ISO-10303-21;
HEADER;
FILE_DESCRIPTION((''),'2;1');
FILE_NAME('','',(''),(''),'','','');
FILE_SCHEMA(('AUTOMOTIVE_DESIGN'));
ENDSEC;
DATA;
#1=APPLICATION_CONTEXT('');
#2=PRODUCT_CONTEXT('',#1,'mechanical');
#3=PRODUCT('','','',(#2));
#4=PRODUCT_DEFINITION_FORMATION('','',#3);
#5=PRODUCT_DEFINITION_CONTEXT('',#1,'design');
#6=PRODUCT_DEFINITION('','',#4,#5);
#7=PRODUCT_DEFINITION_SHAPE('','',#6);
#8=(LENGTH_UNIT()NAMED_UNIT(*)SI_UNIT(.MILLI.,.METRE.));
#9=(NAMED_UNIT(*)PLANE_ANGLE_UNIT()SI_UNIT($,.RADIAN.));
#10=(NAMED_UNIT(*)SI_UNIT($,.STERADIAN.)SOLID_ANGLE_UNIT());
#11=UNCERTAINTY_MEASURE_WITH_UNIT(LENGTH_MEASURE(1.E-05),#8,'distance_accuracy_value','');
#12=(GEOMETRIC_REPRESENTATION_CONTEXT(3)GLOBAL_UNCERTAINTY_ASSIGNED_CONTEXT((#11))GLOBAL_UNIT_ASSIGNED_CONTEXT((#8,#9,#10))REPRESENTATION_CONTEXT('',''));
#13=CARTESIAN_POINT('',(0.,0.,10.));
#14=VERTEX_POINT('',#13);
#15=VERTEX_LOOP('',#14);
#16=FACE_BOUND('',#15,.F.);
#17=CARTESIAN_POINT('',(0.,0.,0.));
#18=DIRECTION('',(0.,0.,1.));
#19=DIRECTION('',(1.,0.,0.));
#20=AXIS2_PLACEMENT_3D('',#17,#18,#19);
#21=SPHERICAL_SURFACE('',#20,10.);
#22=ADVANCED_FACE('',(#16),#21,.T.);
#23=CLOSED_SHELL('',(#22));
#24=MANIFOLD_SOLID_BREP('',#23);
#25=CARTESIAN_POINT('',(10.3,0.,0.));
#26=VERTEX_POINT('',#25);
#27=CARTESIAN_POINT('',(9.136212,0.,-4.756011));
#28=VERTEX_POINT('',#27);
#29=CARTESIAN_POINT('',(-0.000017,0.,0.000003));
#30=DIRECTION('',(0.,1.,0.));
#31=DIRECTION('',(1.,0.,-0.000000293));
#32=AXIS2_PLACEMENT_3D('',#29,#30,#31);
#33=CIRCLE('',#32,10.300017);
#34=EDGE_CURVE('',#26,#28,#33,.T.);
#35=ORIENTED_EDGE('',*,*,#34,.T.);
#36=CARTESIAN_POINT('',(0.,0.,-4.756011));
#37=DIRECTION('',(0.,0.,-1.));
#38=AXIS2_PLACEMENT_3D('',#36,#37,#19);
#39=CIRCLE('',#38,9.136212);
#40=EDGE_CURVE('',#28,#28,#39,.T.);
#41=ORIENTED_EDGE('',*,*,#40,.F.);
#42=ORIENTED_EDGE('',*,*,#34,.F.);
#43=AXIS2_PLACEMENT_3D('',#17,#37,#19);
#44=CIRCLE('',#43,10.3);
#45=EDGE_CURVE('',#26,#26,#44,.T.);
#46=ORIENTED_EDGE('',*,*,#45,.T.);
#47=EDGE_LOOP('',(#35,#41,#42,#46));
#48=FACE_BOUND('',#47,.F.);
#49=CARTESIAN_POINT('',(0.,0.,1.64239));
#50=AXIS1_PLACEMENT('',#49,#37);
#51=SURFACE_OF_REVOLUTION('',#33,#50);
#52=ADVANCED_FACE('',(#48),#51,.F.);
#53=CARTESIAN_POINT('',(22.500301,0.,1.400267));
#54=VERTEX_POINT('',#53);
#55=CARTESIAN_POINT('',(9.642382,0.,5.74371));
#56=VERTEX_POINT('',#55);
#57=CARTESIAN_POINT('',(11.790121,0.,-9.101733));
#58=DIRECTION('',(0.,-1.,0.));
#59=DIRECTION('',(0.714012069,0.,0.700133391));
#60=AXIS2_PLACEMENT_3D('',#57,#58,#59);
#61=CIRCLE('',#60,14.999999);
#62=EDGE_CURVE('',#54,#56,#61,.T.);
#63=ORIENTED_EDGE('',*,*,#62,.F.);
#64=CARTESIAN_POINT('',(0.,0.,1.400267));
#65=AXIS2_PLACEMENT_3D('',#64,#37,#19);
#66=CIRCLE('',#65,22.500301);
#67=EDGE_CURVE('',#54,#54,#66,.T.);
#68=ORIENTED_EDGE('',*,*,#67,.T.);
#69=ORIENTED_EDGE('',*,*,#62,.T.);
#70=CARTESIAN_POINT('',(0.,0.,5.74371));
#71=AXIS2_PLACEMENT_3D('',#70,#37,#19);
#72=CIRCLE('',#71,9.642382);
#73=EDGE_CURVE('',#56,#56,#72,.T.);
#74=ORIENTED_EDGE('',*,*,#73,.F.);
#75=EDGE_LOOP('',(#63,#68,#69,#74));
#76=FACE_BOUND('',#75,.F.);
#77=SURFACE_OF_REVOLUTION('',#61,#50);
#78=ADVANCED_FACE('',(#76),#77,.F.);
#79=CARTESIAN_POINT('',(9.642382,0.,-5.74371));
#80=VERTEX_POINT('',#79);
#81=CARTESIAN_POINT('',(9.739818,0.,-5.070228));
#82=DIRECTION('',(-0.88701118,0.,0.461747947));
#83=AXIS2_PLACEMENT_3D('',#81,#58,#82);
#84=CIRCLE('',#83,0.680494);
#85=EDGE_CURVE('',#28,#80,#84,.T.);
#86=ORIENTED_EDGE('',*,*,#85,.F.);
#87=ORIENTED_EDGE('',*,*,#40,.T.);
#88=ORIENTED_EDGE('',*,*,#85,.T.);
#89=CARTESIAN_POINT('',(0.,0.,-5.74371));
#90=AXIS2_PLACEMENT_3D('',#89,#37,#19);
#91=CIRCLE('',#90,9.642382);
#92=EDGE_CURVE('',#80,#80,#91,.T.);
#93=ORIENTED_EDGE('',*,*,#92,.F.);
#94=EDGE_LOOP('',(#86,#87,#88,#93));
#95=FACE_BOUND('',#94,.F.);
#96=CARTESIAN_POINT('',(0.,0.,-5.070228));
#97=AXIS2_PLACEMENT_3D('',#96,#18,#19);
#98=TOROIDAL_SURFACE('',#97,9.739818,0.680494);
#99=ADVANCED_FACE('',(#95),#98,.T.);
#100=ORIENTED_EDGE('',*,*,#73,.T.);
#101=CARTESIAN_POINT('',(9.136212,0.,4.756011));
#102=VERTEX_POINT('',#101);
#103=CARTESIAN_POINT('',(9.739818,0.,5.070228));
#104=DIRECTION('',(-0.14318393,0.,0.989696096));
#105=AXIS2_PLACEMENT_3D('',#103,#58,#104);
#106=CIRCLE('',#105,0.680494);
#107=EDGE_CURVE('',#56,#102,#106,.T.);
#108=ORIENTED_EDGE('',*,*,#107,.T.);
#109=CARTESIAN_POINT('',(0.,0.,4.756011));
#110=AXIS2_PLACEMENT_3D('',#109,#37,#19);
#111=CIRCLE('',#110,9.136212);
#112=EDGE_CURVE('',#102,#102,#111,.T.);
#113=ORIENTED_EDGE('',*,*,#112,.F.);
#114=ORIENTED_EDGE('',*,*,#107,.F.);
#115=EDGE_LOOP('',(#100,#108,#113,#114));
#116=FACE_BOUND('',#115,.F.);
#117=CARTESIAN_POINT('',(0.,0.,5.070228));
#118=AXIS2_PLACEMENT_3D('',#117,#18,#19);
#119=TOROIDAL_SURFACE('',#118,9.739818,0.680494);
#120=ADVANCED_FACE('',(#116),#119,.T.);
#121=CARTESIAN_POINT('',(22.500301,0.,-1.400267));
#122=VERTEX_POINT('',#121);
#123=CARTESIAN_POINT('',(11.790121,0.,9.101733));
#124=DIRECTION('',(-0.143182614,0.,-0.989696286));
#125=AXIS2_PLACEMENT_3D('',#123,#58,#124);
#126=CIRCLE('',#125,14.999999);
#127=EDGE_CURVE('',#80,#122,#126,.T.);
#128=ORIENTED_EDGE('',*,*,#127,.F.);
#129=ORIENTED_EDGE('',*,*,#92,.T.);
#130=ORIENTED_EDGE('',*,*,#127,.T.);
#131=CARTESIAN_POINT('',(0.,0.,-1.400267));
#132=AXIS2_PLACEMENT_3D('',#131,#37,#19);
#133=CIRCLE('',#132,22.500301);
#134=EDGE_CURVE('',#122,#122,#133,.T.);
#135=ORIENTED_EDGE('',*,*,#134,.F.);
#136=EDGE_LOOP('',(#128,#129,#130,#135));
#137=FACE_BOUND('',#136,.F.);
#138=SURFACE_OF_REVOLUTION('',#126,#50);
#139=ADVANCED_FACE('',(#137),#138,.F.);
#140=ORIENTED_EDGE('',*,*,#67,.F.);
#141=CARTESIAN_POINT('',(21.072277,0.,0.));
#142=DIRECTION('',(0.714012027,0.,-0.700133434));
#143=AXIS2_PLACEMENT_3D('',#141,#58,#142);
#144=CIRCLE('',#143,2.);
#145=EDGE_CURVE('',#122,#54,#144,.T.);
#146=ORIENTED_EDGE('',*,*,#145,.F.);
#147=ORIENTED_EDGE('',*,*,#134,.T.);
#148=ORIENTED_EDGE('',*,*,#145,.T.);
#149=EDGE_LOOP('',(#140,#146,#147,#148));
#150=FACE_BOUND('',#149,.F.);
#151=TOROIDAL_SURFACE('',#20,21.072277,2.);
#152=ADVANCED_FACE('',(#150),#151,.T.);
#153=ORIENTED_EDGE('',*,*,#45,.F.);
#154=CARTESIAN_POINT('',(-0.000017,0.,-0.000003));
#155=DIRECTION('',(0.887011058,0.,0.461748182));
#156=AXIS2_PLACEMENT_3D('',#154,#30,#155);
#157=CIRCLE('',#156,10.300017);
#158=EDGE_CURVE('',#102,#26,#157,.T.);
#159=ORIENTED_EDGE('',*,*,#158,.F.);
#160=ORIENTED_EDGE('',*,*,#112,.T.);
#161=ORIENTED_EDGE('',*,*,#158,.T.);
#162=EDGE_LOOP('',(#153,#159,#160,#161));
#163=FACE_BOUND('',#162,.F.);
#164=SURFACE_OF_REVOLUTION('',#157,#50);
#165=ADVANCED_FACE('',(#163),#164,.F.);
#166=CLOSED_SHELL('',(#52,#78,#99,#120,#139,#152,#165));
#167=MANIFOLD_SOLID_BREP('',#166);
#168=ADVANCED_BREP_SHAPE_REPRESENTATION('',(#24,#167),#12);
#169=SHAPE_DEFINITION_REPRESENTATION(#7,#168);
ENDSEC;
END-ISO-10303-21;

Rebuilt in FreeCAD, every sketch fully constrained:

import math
import FreeCAD as App
import Part
import Sketcher

doc = App.newDocument("Part")
body = doc.addObject("PartDesign::Body", "Body")
body.AllowCompound = True

# Sketch on XZ plane
sketch1 = body.newObject("Sketcher::SketchObject", "Sketch")
sketch1.AttachmentSupport = (doc.getObject("XZ_Plane"), [""])
sketch1.MapMode = "FlatFace"
sketch1.addGeometry(Part.LineSegment(App.Vector(0, 10, 0), App.Vector(0, -10, 0)), False)
sketch1.addGeometry(Part.ArcOfCircle(Part.Circle(App.Vector(0, 0, 0), App.Vector(0, 0, 1), 10), math.radians(-90), math.radians(90)), False)
sketch1.addGeometry(Part.ArcOfCircle(Part.Circle(App.Vector(-0.000017, -0.000003, 0), App.Vector(0, 0, 1), 10.300017), math.radians(0.000017), math.radians(27.499972)), False)
sketch1.addGeometry(Part.ArcOfCircle(Part.Circle(App.Vector(-0.000017, 0.000003, 0), App.Vector(0, 0, 1), 10.300017), math.radians(-27.499972), math.radians(-0.000017)), False)
sketch1.addGeometry(Part.ArcOfCircle(Part.Circle(App.Vector(9.739818, -5.070228, 0), App.Vector(0, 0, 1), 0.680494), math.radians(152.500043), math.radians(261.767871)), False)
sketch1.addGeometry(Part.ArcOfCircle(Part.Circle(App.Vector(11.790121, 9.101733, 0), App.Vector(0, 0, 1), 14.999999), math.radians(-98.232053), math.radians(-44.437707)), False)
sketch1.addGeometry(Part.ArcOfCircle(Part.Circle(App.Vector(21.072277, 0, 0), App.Vector(0, 0, 1), 2), math.radians(-44.43771), math.radians(44.43771)), False)
sketch1.addGeometry(Part.ArcOfCircle(Part.Circle(App.Vector(11.790121, -9.101733, 0), App.Vector(0, 0, 1), 14.999999), math.radians(44.437707), math.radians(98.232053)), False)
sketch1.addGeometry(Part.ArcOfCircle(Part.Circle(App.Vector(9.739818, 5.070228, 0), App.Vector(0, 0, 1), 0.680494), math.radians(98.232129), math.radians(207.499957)), False)
sketch1.addConstraint(Sketcher.Constraint("Coincident", 0, 1, 1, 2))
sketch1.addConstraint(Sketcher.Constraint("Coincident", 1, 1, 0, 2))
sketch1.addConstraint(Sketcher.Constraint("Tangent", 2, 1, 3, 2))
sketch1.addConstraint(Sketcher.Constraint("Tangent", 3, 1, 4, 1))
sketch1.addConstraint(Sketcher.Constraint("Tangent", 4, 2, 5, 1))
sketch1.addConstraint(Sketcher.Constraint("Tangent", 5, 2, 6, 1))
sketch1.addConstraint(Sketcher.Constraint("Tangent", 6, 2, 7, 1))
sketch1.addConstraint(Sketcher.Constraint("Tangent", 7, 2, 8, 1))
sketch1.addConstraint(Sketcher.Constraint("Tangent", 8, 2, 2, 2))
sketch1.addConstraint(Sketcher.Constraint("Vertical", 0))
sketch1.addConstraint(Sketcher.Constraint("Coincident", 1, 3, -1, 1))
sketch1.addConstraint(Sketcher.Constraint("Equal", 2, 3))
sketch1.addConstraint(Sketcher.Constraint("Equal", 5, 7))
sketch1.addConstraint(Sketcher.Constraint("Equal", 4, 8))
sketch1.addConstraint(Sketcher.Constraint("Symmetric", 5, 3, 7, 3, -1))
sketch1.addConstraint(Sketcher.Constraint("PointOnObject", 0, 1, -2))
sketch1.addConstraint(Sketcher.Constraint("PointOnObject", 2, 1, -1))
sketch1.addConstraint(Sketcher.Constraint("Vertical", 4, 3, 8, 3))
sketch1.addConstraint(Sketcher.Constraint("Radius", 1, 10.0))
sketch1.addConstraint(Sketcher.Constraint("Radius", 5, 14.999999))
sketch1.addConstraint(Sketcher.Constraint("Radius", 6, 2.0))
sketch1.addConstraint(Sketcher.Constraint("DistanceX", -1, 1, 2, 1, 10.3))
sketch1.addConstraint(Sketcher.Constraint("Radius", 2, 10.300017))
sketch1.addConstraint(Sketcher.Constraint("Radius", 4, 0.680494))
sketch1.addConstraint(Sketcher.Constraint("DistanceX", -1, 1, 5, 2, 22.500301))
sketch1.addConstraint(Sketcher.Constraint("DistanceY", 4, 2, 3, 1, 0.987699))
revolution = body.newObject("PartDesign::Revolution", "Revolution")
revolution.Profile = sketch1
revolution.ReferenceAxis = (sketch1, ["V_Axis"])
revolution.Angle = 360

doc.recompute()
